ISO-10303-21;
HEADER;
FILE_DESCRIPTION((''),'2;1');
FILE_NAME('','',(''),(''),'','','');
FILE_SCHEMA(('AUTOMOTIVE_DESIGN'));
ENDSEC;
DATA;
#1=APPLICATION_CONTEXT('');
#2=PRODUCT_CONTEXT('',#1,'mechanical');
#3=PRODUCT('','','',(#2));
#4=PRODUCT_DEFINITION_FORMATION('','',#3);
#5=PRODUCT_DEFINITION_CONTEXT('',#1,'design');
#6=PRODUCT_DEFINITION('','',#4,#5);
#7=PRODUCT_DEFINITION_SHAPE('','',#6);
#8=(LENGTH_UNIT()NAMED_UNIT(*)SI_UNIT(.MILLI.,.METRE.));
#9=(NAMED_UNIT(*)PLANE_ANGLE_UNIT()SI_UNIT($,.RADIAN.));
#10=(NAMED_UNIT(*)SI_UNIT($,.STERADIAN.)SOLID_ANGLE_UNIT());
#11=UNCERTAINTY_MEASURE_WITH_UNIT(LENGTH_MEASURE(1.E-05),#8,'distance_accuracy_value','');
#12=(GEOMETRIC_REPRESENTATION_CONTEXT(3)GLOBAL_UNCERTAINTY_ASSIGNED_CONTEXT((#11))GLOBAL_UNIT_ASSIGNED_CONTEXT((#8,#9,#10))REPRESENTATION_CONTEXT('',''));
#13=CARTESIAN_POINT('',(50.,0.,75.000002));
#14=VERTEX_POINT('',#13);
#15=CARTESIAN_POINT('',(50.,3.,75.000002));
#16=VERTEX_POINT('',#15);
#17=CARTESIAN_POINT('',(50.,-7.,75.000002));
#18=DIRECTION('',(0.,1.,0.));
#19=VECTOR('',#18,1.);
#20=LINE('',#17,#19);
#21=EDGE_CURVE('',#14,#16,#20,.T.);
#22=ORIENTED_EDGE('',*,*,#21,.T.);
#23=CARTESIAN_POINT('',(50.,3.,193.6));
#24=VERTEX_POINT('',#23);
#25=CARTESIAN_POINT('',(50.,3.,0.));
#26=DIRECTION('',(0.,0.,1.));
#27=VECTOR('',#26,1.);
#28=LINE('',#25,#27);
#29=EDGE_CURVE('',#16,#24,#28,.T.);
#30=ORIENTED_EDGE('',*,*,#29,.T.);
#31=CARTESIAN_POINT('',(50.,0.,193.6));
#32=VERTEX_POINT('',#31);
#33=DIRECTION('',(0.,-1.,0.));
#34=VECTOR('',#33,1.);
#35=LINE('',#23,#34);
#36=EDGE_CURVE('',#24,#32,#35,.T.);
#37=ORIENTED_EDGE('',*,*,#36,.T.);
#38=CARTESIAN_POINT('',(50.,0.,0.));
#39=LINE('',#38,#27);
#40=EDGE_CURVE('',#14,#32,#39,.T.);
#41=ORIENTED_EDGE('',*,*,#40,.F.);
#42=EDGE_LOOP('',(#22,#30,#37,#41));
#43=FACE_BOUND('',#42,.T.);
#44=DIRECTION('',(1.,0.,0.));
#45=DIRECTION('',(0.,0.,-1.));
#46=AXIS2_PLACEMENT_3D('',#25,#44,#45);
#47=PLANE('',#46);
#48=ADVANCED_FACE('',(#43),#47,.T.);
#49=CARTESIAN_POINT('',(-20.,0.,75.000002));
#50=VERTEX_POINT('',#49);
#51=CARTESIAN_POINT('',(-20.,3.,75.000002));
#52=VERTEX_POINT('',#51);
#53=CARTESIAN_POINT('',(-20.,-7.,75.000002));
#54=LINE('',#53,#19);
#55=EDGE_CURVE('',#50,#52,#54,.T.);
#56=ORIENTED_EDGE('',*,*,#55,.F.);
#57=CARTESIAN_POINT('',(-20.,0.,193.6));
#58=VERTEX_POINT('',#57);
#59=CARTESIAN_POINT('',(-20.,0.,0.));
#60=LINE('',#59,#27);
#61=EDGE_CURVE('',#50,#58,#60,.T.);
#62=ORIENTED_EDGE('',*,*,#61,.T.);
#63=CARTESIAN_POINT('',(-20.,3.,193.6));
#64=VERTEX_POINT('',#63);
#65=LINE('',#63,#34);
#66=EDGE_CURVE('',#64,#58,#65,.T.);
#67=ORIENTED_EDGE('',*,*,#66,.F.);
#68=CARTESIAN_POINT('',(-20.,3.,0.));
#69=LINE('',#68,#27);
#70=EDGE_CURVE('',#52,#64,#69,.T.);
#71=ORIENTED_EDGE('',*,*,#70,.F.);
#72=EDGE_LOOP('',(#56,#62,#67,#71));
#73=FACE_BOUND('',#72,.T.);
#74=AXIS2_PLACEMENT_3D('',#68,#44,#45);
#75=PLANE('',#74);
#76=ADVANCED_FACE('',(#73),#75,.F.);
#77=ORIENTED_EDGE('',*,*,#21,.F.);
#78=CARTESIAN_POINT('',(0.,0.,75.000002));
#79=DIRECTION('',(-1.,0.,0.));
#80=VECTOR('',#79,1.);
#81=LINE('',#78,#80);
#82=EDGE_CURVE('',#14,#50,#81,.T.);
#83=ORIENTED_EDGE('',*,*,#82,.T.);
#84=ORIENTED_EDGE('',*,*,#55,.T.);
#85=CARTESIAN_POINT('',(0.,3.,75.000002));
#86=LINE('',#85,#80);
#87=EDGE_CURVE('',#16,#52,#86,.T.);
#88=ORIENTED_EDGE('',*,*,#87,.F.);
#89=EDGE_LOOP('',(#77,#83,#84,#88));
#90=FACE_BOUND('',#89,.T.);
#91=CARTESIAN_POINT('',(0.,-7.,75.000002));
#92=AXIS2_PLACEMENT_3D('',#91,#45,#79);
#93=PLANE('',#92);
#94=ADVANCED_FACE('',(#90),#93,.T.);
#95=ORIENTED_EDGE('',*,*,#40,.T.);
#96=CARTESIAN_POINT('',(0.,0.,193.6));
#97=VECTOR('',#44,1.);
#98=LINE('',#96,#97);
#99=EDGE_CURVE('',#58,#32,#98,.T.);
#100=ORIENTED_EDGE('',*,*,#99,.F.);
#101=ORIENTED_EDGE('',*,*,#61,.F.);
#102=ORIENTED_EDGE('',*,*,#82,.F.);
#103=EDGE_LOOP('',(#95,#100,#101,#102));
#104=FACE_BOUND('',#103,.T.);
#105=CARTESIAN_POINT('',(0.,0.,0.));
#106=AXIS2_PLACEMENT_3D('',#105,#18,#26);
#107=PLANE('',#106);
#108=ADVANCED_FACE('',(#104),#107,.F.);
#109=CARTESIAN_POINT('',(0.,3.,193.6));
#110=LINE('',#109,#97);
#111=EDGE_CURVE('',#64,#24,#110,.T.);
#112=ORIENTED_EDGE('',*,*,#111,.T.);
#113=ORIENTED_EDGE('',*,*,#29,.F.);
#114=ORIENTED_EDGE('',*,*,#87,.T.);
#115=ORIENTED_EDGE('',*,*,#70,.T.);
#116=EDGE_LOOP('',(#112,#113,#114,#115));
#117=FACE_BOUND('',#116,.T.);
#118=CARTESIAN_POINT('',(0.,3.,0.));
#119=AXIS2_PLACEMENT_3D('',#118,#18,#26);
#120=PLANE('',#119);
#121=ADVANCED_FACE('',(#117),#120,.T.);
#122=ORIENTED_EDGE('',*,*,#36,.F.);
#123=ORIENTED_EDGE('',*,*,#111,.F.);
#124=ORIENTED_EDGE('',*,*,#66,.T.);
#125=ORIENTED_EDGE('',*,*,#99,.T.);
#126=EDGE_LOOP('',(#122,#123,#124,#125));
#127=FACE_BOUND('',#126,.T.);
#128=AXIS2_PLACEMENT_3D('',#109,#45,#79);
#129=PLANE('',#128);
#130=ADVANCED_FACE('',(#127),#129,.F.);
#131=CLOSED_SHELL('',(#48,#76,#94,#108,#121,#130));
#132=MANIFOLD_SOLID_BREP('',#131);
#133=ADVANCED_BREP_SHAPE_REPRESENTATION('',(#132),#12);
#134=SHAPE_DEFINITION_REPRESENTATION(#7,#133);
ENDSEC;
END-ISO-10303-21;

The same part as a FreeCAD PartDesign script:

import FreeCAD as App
import Part
import Sketcher

V = App.Vector
Q = App.Units.Quantity

doc = App.newDocument("Part")
body = doc.addObject("PartDesign::Body", "Body")

sketch1 = body.newObject("Sketcher::SketchObject", "Sketch")
sketch1.AttachmentSupport = (doc.getObject("XZ_Plane"), [""])
sketch1.MapMode = "FlatFace"
sketch1.addGeometry([
    Part.LineSegment(V(-20, -193.6, 0), V(-20, 193.6, 0)),
    Part.LineSegment(V(-20, 193.6, 0), V(50, 193.6, 0)),
    Part.LineSegment(V(50, 193.6, 0), V(50, -193.6, 0)),
    Part.LineSegment(V(50, -193.6, 0), V(-20, -193.6, 0)),
], False)
sketch1.addConstraint([
    Sketcher.Constraint("Coincident", 0, 2, 1, 1),
    Sketcher.Constraint("Coincident", 1, 2, 2, 1),
    Sketcher.Constraint("Coincident", 2, 2, 3, 1),
    Sketcher.Constraint("Coincident", 3, 2, 0, 1),
    Sketcher.Constraint("Vertical", 0),
    Sketcher.Constraint("Horizontal", 1),
    Sketcher.Constraint("Vertical", 2),
    Sketcher.Constraint("Horizontal", 3),
    Sketcher.Constraint("DistanceX", 1, 1, 1, 2, Q("70 mm")),
    Sketcher.Constraint("DistanceY", 0, 1, 0, 2, Q("387.2 mm")),
    Sketcher.Constraint("DistanceX", 0, 2, -1, 1, Q("20 mm")),
    Sketcher.Constraint("DistanceY", -1, 1, 0, 2, Q("193.6 mm")),
])
pad1 = body.newObject("PartDesign::Pad", "Pad")
pad1.Profile = sketch1
pad1.Length = 3
pad1.Reversed = True

sketch2 = body.newObject("Sketcher::SketchObject", "Sketch001")
sketch2.AttachmentSupport = (doc.getObject("XZ_Plane"), [""])
sketch2.MapMode = "FlatFace"
sketch2.AttachmentOffset = App.Placement(V(0, 0, -3), App.Rotation())
sketch2.addGeometry([
    Part.LineSegment(V(-20, -193.6, 0), V(-20, 75.000002, 0)),
    Part.LineSegment(V(-20, 75.000002, 0), V(50, 75.000002, 0)),
    Part.LineSegment(V(50, 75.000002, 0), V(50, -193.6, 0)),
    Part.LineSegment(V(50, -193.6, 0), V(-20, -193.6, 0)),
], False)
sketch2.addConstraint([
    Sketcher.Constraint("Coincident", 0, 2, 1, 1),
    Sketcher.Constraint("Coincident", 1, 2, 2, 1),
    Sketcher.Constraint("Coincident", 2, 2, 3, 1),
    Sketcher.Constraint("Coincident", 3, 2, 0, 1),
    Sketcher.Constraint("Vertical", 0),
    Sketcher.Constraint("Horizontal", 1),
    Sketcher.Constraint("Vertical", 2),
    Sketcher.Constraint("Horizontal", 3),
    Sketcher.Constraint("DistanceX", 1, 1, 1, 2, Q("70 mm")),
    Sketcher.Constraint("DistanceX", 0, 2, -1, 1, Q("20 mm")),
    Sketcher.Constraint("DistanceY", 2, 2, -1, 1, Q("193.6 mm")),
    Sketcher.Constraint("DistanceY", 0, 1, 0, 2, Q("268.600002 mm")),
])
pocket1 = body.newObject("PartDesign::Pocket", "Pocket")
pocket1.Profile = sketch2
pocket1.Length = 10
pocket1.Reversed = True

doc.recompute()
